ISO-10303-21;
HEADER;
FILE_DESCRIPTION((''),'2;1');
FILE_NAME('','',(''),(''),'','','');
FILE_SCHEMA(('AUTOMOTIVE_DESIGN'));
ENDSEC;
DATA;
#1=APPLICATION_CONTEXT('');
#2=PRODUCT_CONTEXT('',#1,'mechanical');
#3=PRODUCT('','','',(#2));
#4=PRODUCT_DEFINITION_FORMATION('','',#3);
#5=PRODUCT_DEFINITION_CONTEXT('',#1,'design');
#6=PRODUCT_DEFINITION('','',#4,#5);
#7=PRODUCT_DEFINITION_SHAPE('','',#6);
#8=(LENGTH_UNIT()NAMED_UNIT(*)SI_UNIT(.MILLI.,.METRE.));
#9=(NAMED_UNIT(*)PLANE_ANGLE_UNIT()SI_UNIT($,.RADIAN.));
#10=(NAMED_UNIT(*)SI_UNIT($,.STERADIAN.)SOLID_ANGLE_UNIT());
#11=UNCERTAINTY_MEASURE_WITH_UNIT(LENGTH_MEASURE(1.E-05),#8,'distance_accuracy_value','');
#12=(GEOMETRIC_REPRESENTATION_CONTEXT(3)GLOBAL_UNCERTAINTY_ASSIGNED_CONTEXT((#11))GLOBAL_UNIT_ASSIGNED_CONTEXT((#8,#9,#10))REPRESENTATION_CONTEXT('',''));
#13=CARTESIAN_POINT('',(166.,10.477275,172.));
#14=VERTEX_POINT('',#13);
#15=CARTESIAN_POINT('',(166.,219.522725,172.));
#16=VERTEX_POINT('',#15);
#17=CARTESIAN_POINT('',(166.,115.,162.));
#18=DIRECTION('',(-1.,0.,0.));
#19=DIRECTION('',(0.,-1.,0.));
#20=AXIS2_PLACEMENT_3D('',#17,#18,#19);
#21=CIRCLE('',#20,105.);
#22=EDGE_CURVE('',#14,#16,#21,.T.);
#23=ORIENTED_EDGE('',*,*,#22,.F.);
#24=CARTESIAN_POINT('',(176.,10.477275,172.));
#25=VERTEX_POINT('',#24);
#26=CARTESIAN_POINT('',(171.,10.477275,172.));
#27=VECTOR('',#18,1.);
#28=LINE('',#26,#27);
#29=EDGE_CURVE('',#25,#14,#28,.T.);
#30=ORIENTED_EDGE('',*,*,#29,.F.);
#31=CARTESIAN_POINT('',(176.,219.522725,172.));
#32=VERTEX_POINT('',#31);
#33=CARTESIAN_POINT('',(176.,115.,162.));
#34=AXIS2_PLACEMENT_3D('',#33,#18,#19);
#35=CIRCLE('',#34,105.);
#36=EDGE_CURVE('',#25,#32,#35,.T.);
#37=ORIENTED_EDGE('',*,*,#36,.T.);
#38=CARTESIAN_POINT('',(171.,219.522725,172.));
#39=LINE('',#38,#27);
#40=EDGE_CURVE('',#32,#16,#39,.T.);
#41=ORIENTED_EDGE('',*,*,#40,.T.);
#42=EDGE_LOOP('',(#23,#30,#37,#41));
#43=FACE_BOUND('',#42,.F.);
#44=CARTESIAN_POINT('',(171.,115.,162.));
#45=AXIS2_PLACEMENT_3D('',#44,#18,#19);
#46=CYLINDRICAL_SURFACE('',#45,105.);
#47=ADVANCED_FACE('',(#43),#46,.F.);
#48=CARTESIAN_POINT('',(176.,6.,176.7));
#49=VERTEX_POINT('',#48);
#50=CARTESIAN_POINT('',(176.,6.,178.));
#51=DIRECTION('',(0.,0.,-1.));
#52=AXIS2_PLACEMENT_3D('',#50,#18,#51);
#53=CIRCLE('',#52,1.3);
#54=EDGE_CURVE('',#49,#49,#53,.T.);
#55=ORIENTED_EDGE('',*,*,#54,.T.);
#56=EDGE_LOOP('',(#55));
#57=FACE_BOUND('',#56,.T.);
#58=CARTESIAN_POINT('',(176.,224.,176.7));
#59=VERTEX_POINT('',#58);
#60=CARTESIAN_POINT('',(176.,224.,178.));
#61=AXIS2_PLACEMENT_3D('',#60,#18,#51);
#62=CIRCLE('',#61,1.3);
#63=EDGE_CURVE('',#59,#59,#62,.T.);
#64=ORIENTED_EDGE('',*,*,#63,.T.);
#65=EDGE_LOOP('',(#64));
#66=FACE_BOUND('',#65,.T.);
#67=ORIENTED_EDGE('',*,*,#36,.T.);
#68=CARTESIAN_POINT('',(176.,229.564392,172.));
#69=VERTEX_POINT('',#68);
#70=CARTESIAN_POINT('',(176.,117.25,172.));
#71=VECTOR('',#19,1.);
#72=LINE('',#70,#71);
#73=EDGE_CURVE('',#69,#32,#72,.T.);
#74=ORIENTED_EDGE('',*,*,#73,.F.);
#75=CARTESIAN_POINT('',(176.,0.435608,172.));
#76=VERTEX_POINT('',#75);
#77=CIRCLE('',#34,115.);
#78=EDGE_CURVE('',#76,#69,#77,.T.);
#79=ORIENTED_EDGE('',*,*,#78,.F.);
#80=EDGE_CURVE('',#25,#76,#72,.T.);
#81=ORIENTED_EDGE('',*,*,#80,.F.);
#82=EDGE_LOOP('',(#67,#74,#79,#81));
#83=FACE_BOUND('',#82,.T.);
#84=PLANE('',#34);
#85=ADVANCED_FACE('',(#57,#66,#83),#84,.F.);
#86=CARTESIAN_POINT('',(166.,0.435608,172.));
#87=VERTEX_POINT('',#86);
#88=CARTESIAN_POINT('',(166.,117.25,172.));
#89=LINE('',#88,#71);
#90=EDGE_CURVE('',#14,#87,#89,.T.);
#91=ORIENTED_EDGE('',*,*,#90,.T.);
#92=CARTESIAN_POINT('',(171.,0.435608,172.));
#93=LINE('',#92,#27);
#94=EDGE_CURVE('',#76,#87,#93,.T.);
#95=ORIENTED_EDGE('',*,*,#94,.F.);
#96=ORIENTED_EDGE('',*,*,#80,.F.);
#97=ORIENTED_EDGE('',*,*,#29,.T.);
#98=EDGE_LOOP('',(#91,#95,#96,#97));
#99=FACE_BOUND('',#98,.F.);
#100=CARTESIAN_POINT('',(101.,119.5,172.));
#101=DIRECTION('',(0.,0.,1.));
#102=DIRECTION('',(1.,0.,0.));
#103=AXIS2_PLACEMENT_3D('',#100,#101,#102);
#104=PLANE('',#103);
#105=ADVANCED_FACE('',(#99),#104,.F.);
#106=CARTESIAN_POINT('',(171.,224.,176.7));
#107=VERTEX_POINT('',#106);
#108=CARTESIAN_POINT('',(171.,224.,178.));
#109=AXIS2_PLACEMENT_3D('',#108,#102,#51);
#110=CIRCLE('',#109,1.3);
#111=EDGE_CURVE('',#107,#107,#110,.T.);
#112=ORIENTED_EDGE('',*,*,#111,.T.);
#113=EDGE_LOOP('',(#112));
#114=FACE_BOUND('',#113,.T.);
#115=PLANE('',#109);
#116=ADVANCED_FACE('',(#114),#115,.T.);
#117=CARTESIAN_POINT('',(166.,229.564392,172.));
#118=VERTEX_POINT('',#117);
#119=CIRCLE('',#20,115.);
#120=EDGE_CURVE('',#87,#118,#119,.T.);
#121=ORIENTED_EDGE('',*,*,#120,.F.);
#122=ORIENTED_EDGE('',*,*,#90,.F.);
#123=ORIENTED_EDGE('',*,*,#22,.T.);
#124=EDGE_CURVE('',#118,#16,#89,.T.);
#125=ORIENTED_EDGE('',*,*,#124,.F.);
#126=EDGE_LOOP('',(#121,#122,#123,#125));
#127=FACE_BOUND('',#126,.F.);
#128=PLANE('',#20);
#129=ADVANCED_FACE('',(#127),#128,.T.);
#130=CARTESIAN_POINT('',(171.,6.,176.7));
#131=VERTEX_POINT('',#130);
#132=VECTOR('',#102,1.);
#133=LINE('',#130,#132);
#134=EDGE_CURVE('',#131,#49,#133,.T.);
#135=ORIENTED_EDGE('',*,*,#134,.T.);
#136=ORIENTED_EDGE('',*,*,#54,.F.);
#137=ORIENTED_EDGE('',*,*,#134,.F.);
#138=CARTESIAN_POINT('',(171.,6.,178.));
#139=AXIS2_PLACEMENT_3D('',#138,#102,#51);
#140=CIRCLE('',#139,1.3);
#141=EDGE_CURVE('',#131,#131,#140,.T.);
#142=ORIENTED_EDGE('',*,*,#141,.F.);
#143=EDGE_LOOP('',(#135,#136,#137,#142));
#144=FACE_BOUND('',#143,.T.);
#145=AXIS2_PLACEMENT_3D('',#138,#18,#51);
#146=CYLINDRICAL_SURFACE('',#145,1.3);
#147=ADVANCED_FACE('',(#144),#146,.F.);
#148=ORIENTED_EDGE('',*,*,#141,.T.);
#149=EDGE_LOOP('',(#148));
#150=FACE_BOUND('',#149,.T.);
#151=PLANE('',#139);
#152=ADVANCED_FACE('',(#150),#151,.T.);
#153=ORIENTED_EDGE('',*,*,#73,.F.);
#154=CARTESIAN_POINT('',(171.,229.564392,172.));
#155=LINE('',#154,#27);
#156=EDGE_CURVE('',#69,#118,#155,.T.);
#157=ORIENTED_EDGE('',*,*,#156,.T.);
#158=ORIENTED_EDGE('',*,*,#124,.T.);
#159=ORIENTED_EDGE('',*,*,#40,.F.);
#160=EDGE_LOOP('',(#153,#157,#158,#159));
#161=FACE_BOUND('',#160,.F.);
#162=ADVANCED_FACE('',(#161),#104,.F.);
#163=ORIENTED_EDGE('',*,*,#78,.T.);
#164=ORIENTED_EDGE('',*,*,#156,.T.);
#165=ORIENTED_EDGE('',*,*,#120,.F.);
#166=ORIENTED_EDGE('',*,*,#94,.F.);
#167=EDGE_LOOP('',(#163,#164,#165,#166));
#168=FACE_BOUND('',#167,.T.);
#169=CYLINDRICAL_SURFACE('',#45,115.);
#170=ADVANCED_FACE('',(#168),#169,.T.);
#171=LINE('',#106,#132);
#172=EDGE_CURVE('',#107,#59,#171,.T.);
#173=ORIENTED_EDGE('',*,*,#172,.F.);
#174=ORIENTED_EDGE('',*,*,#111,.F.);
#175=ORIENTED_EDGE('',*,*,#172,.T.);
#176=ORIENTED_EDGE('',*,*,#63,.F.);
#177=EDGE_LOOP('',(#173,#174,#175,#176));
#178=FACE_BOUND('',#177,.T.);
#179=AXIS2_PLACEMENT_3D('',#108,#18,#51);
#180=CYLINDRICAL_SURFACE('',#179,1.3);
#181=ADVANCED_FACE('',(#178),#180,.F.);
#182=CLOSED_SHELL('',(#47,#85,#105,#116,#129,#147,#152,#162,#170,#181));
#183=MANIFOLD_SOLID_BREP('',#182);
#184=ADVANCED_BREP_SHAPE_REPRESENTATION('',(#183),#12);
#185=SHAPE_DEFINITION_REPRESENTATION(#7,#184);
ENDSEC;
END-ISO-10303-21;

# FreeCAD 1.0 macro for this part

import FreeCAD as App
import Part
import Sketcher
from FreeCAD import Vector

doc = App.newDocument("Part")
body = doc.addObject("PartDesign::Body", "Body")

# Sketch on XY plane
sketch1 = body.newObject("Sketcher::SketchObject", "Sketch")
sketch1.AttachmentSupport = (doc.getObject("XY_Plane"), [""])
sketch1.MapMode = "FlatFace"
sketch1.AttachmentOffset = App.Placement(Vector(0, 0, 162), App.Rotation())
sketch1.addGeometry([
    Part.LineSegment(Vector(0, 239, 0), Vector(0, 0, 0)),
    Part.LineSegment(Vector(0, 0, 0), Vector(202, 0, 0)),
    Part.LineSegment(Vector(202, 0, 0), Vector(202, 239, 0)),
    Part.LineSegment(Vector(202, 239, 0), Vector(0, 239, 0)),
], False)
sketch1.addConstraint([
    Sketcher.Constraint("Coincident", 0, 2, 1, 1),
    Sketcher.Constraint("Coincident", 1, 2, 2, 1),
    Sketcher.Constraint("Coincident", 2, 2, 3, 1),
    Sketcher.Constraint("Coincident", 3, 2, 0, 1),
    Sketcher.Constraint("Vertical", 0),
    Sketcher.Constraint("Horizontal", 1),
    Sketcher.Constraint("Vertical", 2),
    Sketcher.Constraint("Horizontal", 3),
    Sketcher.Constraint("Coincident", 0, 2, -1, 1),
    Sketcher.Constraint("DistanceX", 1, 1, 1, 2, 202.0),
    Sketcher.Constraint("DistanceY", 0, 2, 0, 1, 239.0),
])
pad1 = body.newObject("PartDesign::Pad", "Pad")
pad1.Profile = sketch1
pad1.Length = 10
body2 = doc.addObject("PartDesign::Body", "Body001")

# Sketch on YZ plane
sketch2 = body2.newObject("Sketcher::SketchObject", "Sketch001")
sketch2.AttachmentSupport = (doc.getObject("YZ_Plane001"), [""])
sketch2.MapMode = "FlatFace"
sketch2.AttachmentOffset = App.Placement(Vector(0, 0, 5), App.Rotation())
sketch2.addGeometry(Part.Circle(Vector(224, 178, 0), Vector(0, 0, 1), 1.3), False)
sketch2.addConstraint([
    Sketcher.Constraint("Diameter", 0, 2.6),
    Sketcher.Constraint("DistanceX", -1, 1, 0, 3, 224.0),
    Sketcher.Constraint("DistanceY", -1, 1, 0, 3, 178.0),
])
pad2 = body2.newObject("PartDesign::Pad", "Pad001")
pad2.Profile = sketch2
pad2.Length = 331
body3 = doc.addObject("PartDesign::Body", "Body002")

# Sketch on YZ plane
sketch3 = body3.newObject("Sketcher::SketchObject", "Sketch002")
sketch3.AttachmentSupport = (doc.getObject("YZ_Plane002"), [""])
sketch3.MapMode = "FlatFace"
sketch3.AttachmentOffset = App.Placement(Vector(0, 0, 5), App.Rotation())
sketch3.addGeometry(Part.Circle(Vector(6, 178, 0), Vector(0, 0, 1), 1.3), False)
sketch3.addConstraint([
    Sketcher.Constraint("Diameter", 0, 2.6),
    Sketcher.Constraint("DistanceX", -1, 1, 0, 3, 6.0),
    Sketcher.Constraint("DistanceY", -1, 1, 0, 3, 178.0),
])
pad3 = body3.newObject("PartDesign::Pad", "Pad002")
pad3.Profile = sketch3
pad3.Length = 331
body4 = doc.addObject("PartDesign::Body", "Body003")

# Sketch on XY plane
sketch4 = body4.newObject("Sketcher::SketchObject", "Sketch003")
sketch4.AttachmentSupport = (doc.getObject("XY_Plane003"), [""])
sketch4.MapMode = "FlatFace"
sketch4.AttachmentOffset = App.Placement(Vector(0, 0, 171), App.Rotation())
sketch4.addGeometry([
    Part.LineSegment(Vector(-13, 115, 0), Vector(-3, 115, 0)),
    Part.LineSegment(Vector(-3, 115, 0), Vector(-3, 10, 0)),
    Part.LineSegment(Vector(-3, 10, 0), Vector(-13, 10, 0)),
    Part.LineSegment(Vector(-13, 10, 0), Vector(-13, 115, 0)),
], False)
sketch4.addGeometry(Part.LineSegment(Vector(-3, 115, 0), Vector(-13, 115, 0)), True)  # axis
sketch4.addConstraint([
    Sketcher.Constraint("Coincident", 0, 2, 1, 1),
    Sketcher.Constraint("Coincident", 1, 2, 2, 1),
    Sketcher.Constraint("Coincident", 2, 2, 3, 1),
    Sketcher.Constraint("Coincident", 3, 2, 0, 1),
    Sketcher.Constraint("Horizontal", 0),
    Sketcher.Constraint("Vertical", 1),
    Sketcher.Constraint("Horizontal", 2),
    Sketcher.Constraint("Vertical", 3),
    Sketcher.Constraint("Horizontal", 4),
    Sketcher.Constraint("Coincident", 4, 1, 0, 2),
    Sketcher.Constraint("Vertical", 2, 2, 4, 2),
    Sketcher.Constraint("DistanceX", 0, 1, 0, 2, 10.0),
    Sketcher.Constraint("DistanceY", 1, 2, 1, 1, 105.0),
    Sketcher.Constraint("DistanceX", 0, 2, -1, 1, 3.0),
    Sketcher.Constraint("DistanceY", -1, 1, 0, 2, 115.0),
])
revolution = body4.newObject("PartDesign::Revolution", "Revolution")
revolution.Profile = sketch4
revolution.ReferenceAxis = (sketch4, ["Axis0"])
revolution.Angle = 180
body5 = doc.addObject("PartDesign::Body", "Body004")

# Sketch on XY plane
sketch5 = body5.newObject("Sketcher::SketchObject", "Sketch004")
sketch5.AttachmentSupport = (doc.getObject("XY_Plane004"), [""])
sketch5.MapMode = "FlatFace"
sketch5.AttachmentOffset = App.Placement(Vector(0, 0, 171), App.Rotation())
sketch5.addGeometry([
    Part.LineSegment(Vector(-13, 115, 0), Vector(-3, 115, 0)),
    Part.LineSegment(Vector(-3, 115, 0), Vector(-3, 0, 0)),
    Part.LineSegment(Vector(-3, 0, 0), Vector(-13, 0, 0)),
    Part.LineSegment(Vector(-13, 0, 0), Vector(-13, 115, 0)),
], False)
sketch5.addGeometry(Part.LineSegment(Vector(-3, 115, 0), Vector(-13, 115, 0)), True)  # axis
sketch5.addConstraint([
    Sketcher.Constraint("Coincident", 0, 2, 1, 1),
    Sketcher.Constraint("Coincident", 1, 2, 2, 1),
    Sketcher.Constraint("Coincident", 2, 2, 3, 1),
    Sketcher.Constraint("Coincident", 3, 2, 0, 1),
    Sketcher.Constraint("Horizontal", 0),
    Sketcher.Constraint("Vertical", 1),
    Sketcher.Constraint("Horizontal", 2),
    Sketcher.Constraint("Vertical", 3),
    Sketcher.Constraint("Horizontal", 4),
    Sketcher.Constraint("Coincident", 4, 1, 0, 2),
    Sketcher.Constraint("PointOnObject", 1, 2, -1),
    Sketcher.Constraint("Vertical", 2, 2, 4, 2),
    Sketcher.Constraint("DistanceX", 0, 1, 0, 2, 10.0),
    Sketcher.Constraint("DistanceY", 1, 2, 1, 1, 115.0),
    Sketcher.Constraint("DistanceX", 0, 2, -1, 1, 3.0),
])
revolution2 = body5.newObject("PartDesign::Revolution", "Revolution001")
revolution2.Profile = sketch5
revolution2.ReferenceAxis = (sketch5, ["Axis0"])
revolution2.Angle = 180
doc.recompute()

boolean = body5.newObject("PartDesign::Boolean", "Boolean")
boolean.Type = "Cut"
boolean.addObjects([body4])
body6 = doc.addObject("PartDesign::Body", "Body005")
doc.recompute()

body5.Placement = App.Placement(Vector(13, 0, -9), App.Rotation(Vector(0, 0, 1), 0))
boolean2 = body6.newObject("PartDesign::Boolean", "Boolean001")
boolean2.Type = "Fuse"
boolean2.addObjects([body5])
doc.recompute()

boolean3 = body6.newObject("PartDesign::Boolean", "Boolean002")
boolean3.Type = "Cut"
boolean3.addObjects([body3])
doc.recompute()

boolean4 = body6.newObject("PartDesign::Boolean", "Boolean003")
boolean4.Type = "Cut"
boolean4.addObjects([body2])
body7 = doc.addObject("PartDesign::Body", "Body006")
doc.recompute()

body6.Placement = App.Placement(Vector(166, 0, 0), App.Rotation(Vector(0, 0, 1), 0))
boolean5 = body7.newObject("PartDesign::Boolean", "Boolean004")
boolean5.Type = "Fuse"
boolean5.addObjects([body6])
doc.recompute()

boolean6 = body7.newObject("PartDesign::Boolean", "Boolean005")
boolean6.Type = "Cut"
boolean6.addObjects([body])

doc.recompute()
